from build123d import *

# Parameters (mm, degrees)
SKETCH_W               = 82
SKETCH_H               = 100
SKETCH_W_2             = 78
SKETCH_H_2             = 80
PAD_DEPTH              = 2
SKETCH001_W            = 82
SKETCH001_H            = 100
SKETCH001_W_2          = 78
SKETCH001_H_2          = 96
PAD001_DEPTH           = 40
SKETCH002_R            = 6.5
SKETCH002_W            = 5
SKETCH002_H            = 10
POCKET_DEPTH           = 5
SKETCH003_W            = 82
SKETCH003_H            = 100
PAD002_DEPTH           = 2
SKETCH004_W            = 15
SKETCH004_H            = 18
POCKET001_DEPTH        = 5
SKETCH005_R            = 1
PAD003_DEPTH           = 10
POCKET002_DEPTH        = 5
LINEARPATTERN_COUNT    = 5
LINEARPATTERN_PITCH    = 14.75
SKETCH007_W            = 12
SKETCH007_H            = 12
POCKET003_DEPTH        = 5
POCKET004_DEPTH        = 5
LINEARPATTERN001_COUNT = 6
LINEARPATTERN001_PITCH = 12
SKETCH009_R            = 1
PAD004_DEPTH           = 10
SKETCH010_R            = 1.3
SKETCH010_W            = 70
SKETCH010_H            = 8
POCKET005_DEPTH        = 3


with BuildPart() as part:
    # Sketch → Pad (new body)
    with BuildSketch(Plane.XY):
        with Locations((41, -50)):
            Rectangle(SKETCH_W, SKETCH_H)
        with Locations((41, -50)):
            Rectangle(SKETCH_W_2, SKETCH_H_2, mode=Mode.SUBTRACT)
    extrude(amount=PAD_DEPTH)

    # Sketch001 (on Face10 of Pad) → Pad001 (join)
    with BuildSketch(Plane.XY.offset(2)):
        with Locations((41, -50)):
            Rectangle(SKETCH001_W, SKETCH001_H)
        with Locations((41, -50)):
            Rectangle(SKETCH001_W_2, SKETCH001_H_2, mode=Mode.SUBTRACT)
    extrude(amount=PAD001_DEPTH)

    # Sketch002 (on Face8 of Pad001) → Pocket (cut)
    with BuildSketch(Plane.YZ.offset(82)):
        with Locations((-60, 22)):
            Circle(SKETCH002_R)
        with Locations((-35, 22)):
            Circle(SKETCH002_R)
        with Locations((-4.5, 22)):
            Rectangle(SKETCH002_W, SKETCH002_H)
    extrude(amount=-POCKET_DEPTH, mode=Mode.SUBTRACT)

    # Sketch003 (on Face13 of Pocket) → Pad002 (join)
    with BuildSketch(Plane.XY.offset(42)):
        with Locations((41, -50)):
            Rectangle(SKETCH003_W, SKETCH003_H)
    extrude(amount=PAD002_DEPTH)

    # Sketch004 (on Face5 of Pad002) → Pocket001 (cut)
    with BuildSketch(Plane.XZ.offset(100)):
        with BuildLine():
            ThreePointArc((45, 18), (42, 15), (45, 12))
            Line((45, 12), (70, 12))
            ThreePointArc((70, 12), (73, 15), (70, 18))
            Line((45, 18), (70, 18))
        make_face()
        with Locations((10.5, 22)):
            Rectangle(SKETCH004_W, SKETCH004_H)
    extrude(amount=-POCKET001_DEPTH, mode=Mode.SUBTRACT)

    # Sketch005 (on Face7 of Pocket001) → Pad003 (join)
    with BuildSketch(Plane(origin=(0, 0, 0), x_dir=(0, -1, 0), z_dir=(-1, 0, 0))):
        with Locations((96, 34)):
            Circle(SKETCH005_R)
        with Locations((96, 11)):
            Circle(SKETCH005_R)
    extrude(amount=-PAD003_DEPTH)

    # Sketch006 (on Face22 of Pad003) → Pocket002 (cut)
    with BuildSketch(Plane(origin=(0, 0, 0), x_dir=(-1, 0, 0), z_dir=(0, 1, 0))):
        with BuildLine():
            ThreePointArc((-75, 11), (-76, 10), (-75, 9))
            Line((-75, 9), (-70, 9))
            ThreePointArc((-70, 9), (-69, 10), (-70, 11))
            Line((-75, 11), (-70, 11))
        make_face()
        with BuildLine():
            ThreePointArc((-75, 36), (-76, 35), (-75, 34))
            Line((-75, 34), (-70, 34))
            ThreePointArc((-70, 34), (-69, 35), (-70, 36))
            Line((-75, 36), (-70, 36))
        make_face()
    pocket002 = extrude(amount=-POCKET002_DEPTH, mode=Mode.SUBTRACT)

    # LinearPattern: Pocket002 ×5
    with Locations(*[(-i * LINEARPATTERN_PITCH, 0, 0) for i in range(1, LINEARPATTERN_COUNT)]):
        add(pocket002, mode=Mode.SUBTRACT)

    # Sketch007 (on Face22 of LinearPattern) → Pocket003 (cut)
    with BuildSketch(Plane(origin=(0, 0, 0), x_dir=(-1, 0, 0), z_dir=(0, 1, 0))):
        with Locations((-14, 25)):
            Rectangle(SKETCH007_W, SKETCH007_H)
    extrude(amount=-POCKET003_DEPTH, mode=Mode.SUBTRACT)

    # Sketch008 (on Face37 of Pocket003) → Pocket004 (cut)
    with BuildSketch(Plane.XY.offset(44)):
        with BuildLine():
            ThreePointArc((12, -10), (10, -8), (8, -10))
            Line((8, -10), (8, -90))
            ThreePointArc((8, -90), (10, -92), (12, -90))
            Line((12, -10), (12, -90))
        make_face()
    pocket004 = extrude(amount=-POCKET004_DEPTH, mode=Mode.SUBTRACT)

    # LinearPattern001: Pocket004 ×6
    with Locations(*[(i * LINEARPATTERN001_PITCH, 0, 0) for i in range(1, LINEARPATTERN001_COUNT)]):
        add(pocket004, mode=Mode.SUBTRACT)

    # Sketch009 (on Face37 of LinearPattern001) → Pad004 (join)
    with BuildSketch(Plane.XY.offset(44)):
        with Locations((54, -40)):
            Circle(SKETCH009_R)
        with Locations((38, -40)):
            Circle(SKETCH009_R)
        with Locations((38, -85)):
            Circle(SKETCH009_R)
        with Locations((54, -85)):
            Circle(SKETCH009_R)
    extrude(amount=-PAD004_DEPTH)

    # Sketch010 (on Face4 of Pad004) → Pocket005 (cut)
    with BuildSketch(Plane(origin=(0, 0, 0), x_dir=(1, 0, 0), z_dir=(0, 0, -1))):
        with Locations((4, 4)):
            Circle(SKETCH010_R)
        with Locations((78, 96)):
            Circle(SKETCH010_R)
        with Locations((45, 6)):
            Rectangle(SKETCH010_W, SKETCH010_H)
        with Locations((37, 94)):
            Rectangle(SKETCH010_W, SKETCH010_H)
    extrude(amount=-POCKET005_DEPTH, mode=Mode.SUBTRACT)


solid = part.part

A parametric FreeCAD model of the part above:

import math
import FreeCAD as App
import Part
import Sketcher
from FreeCAD import Vector

doc = App.newDocument("Part")
body = doc.addObject("PartDesign::Body", "Body")

# Sketch on XY plane
sketch1 = body.newObject("Sketcher::SketchObject", "Sketch")
sketch1.AttachmentSupport = (doc.getObject("XY_Plane"), [""])
sketch1.MapMode = "FlatFace"
sketch1.addGeometry([
    Part.LineSegment(Vector(0, 0, 0), Vector(0, -100, 0)),  # 0
    Part.LineSegment(Vector(0, -100, 0), Vector(82, -100, 0)),  # 1
    Part.LineSegment(Vector(82, -100, 0), Vector(82, 0, 0)),  # 2
    Part.LineSegment(Vector(82, 0, 0), Vector(0, 0, 0)),  # 3
    Part.LineSegment(Vector(80, -90, 0), Vector(2, -90, 0)),  # 4
    Part.LineSegment(Vector(2, -90, 0), Vector(2, -10, 0)),  # 5
    Part.LineSegment(Vector(2, -10, 0), Vector(80, -10, 0)),  # 6
    Part.LineSegment(Vector(80, -10, 0), Vector(80, -90, 0)),  # 7
], False)
sketch1.addConstraint([
    Sketcher.Constraint("Coincident", 0, 2, 1, 1),
    Sketcher.Constraint("Coincident", 1, 2, 2, 1),
    Sketcher.Constraint("Coincident", 2, 2, 3, 1),
    Sketcher.Constraint("Coincident", 3, 2, 0, 1),
    Sketcher.Constraint("Coincident", 4, 2, 5, 1),
    Sketcher.Constraint("Coincident", 5, 2, 6, 1),
    Sketcher.Constraint("Coincident", 6, 2, 7, 1),
    Sketcher.Constraint("Coincident", 7, 2, 4, 1),
    Sketcher.Constraint("Vertical", 0),
    Sketcher.Constraint("Horizontal", 1),
    Sketcher.Constraint("Vertical", 2),
    Sketcher.Constraint("Horizontal", 3),
    Sketcher.Constraint("Horizontal", 4),
    Sketcher.Constraint("Vertical", 5),
    Sketcher.Constraint("Horizontal", 6),
    Sketcher.Constraint("Vertical", 7),
    Sketcher.Constraint("Coincident", 3, 2, -1, 1),
    Sketcher.Constraint("DistanceX", 1, 1, 1, 2, 82.0),
    Sketcher.Constraint("DistanceX", 4, 2, 4, 1, 78.0),
    Sketcher.Constraint("DistanceY", 0, 2, 0, 1, 100.0),
    Sketcher.Constraint("DistanceY", 5, 1, 5, 2, 80.0),
    Sketcher.Constraint("DistanceX", -1, 1, 4, 2, 2.0),
    Sketcher.Constraint("DistanceY", 4, 2, -1, 1, 90.0),
])
pad1 = body.newObject("PartDesign::Pad", "Pad")
pad1.Profile = sketch1
pad1.Length = 2

# Sketch on XY plane
sketch2 = body.newObject("Sketcher::SketchObject", "Sketch001")
sketch2.AttachmentSupport = (doc.getObject("XY_Plane"), [""])
sketch2.MapMode = "FlatFace"
sketch2.AttachmentOffset = App.Placement(Vector(0, 0, 2), App.Rotation())
sketch2.addGeometry([
    Part.LineSegment(Vector(0, 0, 0), Vector(0, -100, 0)),  # 0
    Part.LineSegment(Vector(0, -100, 0), Vector(82, -100, 0)),  # 1
    Part.LineSegment(Vector(82, -100, 0), Vector(82, 0, 0)),  # 2
    Part.LineSegment(Vector(82, 0, 0), Vector(0, 0, 0)),  # 3
    Part.LineSegment(Vector(80, -98, 0), Vector(2, -98, 0)),  # 4
    Part.LineSegment(Vector(2, -98, 0), Vector(2, -2, 0)),  # 5
    Part.LineSegment(Vector(2, -2, 0), Vector(80, -2, 0)),  # 6
    Part.LineSegment(Vector(80, -2, 0), Vector(80, -98, 0)),  # 7
], False)
sketch2.addConstraint([
    Sketcher.Constraint("Coincident", 0, 2, 1, 1),
    Sketcher.Constraint("Coincident", 1, 2, 2, 1),
    Sketcher.Constraint("Coincident", 2, 2, 3, 1),
    Sketcher.Constraint("Coincident", 3, 2, 0, 1),
    Sketcher.Constraint("Coincident", 4, 2, 5, 1),
    Sketcher.Constraint("Coincident", 5, 2, 6, 1),
    Sketcher.Constraint("Coincident", 6, 2, 7, 1),
    Sketcher.Constraint("Coincident", 7, 2, 4, 1),
    Sketcher.Constraint("Vertical", 0),
    Sketcher.Constraint("Horizontal", 1),
    Sketcher.Constraint("Vertical", 2),
    Sketcher.Constraint("Horizontal", 3),
    Sketcher.Constraint("Horizontal", 4),
    Sketcher.Constraint("Vertical", 5),
    Sketcher.Constraint("Horizontal", 6),
    Sketcher.Constraint("Vertical", 7),
    Sketcher.Constraint("Coincident", 3, 2, -1, 1),
    Sketcher.Constraint("DistanceX", 1, 1, 1, 2, 82.0),
    Sketcher.Constraint("DistanceX", 4, 2, 4, 1, 78.0),
    Sketcher.Constraint("DistanceY", 0, 2, 0, 1, 100.0),
    Sketcher.Constraint("DistanceY", 5, 1, 5, 2, 96.0),
    Sketcher.Constraint("DistanceX", -1, 1, 4, 2, 2.0),
    Sketcher.Constraint("DistanceY", 4, 2, -1, 1, 98.0),
])
pad2 = body.newObject("PartDesign::Pad", "Pad001")
pad2.Profile = sketch2
pad2.Length = 40

# Sketch on YZ plane
sketch3 = body.newObject("Sketcher::SketchObject", "Sketch002")
sketch3.AttachmentSupport = (doc.getObject("YZ_Plane"), [""])
sketch3.MapMode = "FlatFace"
sketch3.AttachmentOffset = App.Placement(Vector(0, 0, 82), App.Rotation())
sketch3.addGeometry([
    Part.Circle(Vector(-60, 22, 0), Vector(0, 0, 1), 6),  # 0
    Part.Circle(Vector(-35, 22, 0), Vector(0, 0, 1), 6),  # 1
    Part.LineSegment(Vector(-7, 27, 0), Vector(-7, 17, 0)),  # 2
    Part.LineSegment(Vector(-7, 17, 0), Vector(-2, 17, 0)),  # 3
    Part.LineSegment(Vector(-2, 17, 0), Vector(-2, 27, 0)),  # 4
    Part.LineSegment(Vector(-2, 27, 0), Vector(-7, 27, 0)),  # 5
], False)
sketch3.addConstraint([
    Sketcher.Constraint("Coincident", 2, 2, 3, 1),
    Sketcher.Constraint("Coincident", 3, 2, 4, 1),
    Sketcher.Constraint("Coincident", 4, 2, 5, 1),
    Sketcher.Constraint("Coincident", 5, 2, 2, 1),
    Sketcher.Constraint("Vertical", 2),
    Sketcher.Constraint("Horizontal", 3),
    Sketcher.Constraint("Vertical", 4),
    Sketcher.Constraint("Horizontal", 5),
    Sketcher.Constraint("Equal", 0, 1),
    Sketcher.Constraint("Horizontal", 0, 3, 1, 3),
    Sketcher.Constraint("Diameter", 0, 13.0),
    Sketcher.Constraint("DistanceX", 3, 1, 3, 2, 5.0),
    Sketcher.Constraint("DistanceY", 2, 2, 2, 1, 10.0),
    Sketcher.Constraint("DistanceX", 0, 3, -1, 1, 60.0),
    Sketcher.Constraint("DistanceY", -1, 1, 0, 3, 22.0),
    Sketcher.Constraint("DistanceX", 1, 3, -1, 1, 35.0),
    Sketcher.Constraint("DistanceX", 2, 2, -1, 1, 7.0),
    Sketcher.Constraint("DistanceY", -1, 1, 2, 2, 17.0),
])
pocket1 = body.newObject("PartDesign::Pocket", "Pocket")
pocket1.Profile = sketch3
pocket1.Length = 5

# Sketch on XY plane
sketch4 = body.newObject("Sketcher::SketchObject", "Sketch003")
sketch4.AttachmentSupport = (doc.getObject("XY_Plane"), [""])
sketch4.MapMode = "FlatFace"
sketch4.AttachmentOffset = App.Placement(Vector(0, 0, 42), App.Rotation())
sketch4.addGeometry([
    Part.LineSegment(Vector(0, 0, 0), Vector(0, -100, 0)),
    Part.LineSegment(Vector(0, -100, 0), Vector(82, -100, 0)),
    Part.LineSegment(Vector(82, -100, 0), Vector(82, 0, 0)),
    Part.LineSegment(Vector(82, 0, 0), Vector(0, 0, 0)),
], False)
sketch4.addConstraint([
    Sketcher.Constraint("Coincident", 0, 2, 1, 1),
    Sketcher.Constraint("Coincident", 1, 2, 2, 1),
    Sketcher.Constraint("Coincident", 2, 2, 3, 1),
    Sketcher.Constraint("Coincident", 3, 2, 0, 1),
    Sketcher.Constraint("Vertical", 0),
    Sketcher.Constraint("Horizontal", 1),
    Sketcher.Constraint("Vertical", 2),
    Sketcher.Constraint("Horizontal", 3),
    Sketcher.Constraint("Coincident", 3, 2, -1, 1),
    Sketcher.Constraint("DistanceX", 1, 1, 1, 2, 82.0),
    Sketcher.Constraint("DistanceY", 0, 2, 0, 1, 100.0),
])
pad3 = body.newObject("PartDesign::Pad", "Pad002")
pad3.Profile = sketch4
pad3.Length = 2

# Sketch on XZ plane
sketch5 = body.newObject("Sketcher::SketchObject", "Sketch004")
sketch5.AttachmentSupport = (doc.getObject("XZ_Plane"), [""])
sketch5.MapMode = "FlatFace"
sketch5.AttachmentOffset = App.Placement(Vector(0, 0, 100), App.Rotation())
sketch5.addGeometry([
    Part.ArcOfCircle(Part.Circle(Vector(45, 15, 0), Vector(0, 0, 1), 3), math.radians(90), math.radians(270)),  # 0
    Part.LineSegment(Vector(45, 12, 0), Vector(70, 12, 0)),  # 1
    Part.ArcOfCircle(Part.Circle(Vector(70, 15, 0), Vector(0, 0, 1), 3), math.radians(-90), math.radians(90)),  # 2
    Part.LineSegment(Vector(70, 18, 0), Vector(45, 18, 0)),  # 3
    Part.LineSegment(Vector(3, 31, 0), Vector(3, 13, 0)),  # 4
    Part.LineSegment(Vector(3, 13, 0), Vector(18, 13, 0)),  # 5
    Part.LineSegment(Vector(18, 13, 0), Vector(18, 31, 0)),  # 6
    Part.LineSegment(Vector(18, 31, 0), Vector(3, 31, 0)),  # 7
], False)
sketch5.addConstraint([
    Sketcher.Constraint("Tangent", 0, 2, 1, 1),
    Sketcher.Constraint("Tangent", 1, 2, 2, 1),
    Sketcher.Constraint("Tangent", 2, 2, 3, 1),
    Sketcher.Constraint("Tangent", 3, 2, 0, 1),
    Sketcher.Constraint("Coincident", 4, 2, 5, 1),
    Sketcher.Constraint("Coincident", 5, 2, 6, 1),
    Sketcher.Constraint("Coincident", 6, 2, 7, 1),
    Sketcher.Constraint("Coincident", 7, 2, 4, 1),
    Sketcher.Constraint("Horizontal", 1),
    Sketcher.Constraint("Horizontal", 3),
    Sketcher.Constraint("Vertical", 4),
    Sketcher.Constraint("Horizontal", 5),
    Sketcher.Constraint("Vertical", 6),
    Sketcher.Constraint("Horizontal", 7),
    Sketcher.Constraint("Radius", 0, 3.0),
    Sketcher.Constraint("DistanceX", 1, 1, 1, 2, 25.0),
    Sketcher.Constraint("DistanceX", 5, 1, 5, 2, 15.0),
    Sketcher.Constraint("DistanceY", 4, 2, 4, 1, 18.0),
    Sketcher.Constraint("DistanceX", -1, 1, 0, 3, 45.0),
    Sketcher.Constraint("DistanceY", -1, 1, 0, 3, 15.0),
    Sketcher.Constraint("DistanceX", -1, 1, 4, 2, 3.0),
    Sketcher.Constraint("DistanceY", -1, 1, 4, 2, 13.0),
])
pocket2 = body.newObject("PartDesign::Pocket", "Pocket001")
pocket2.Profile = sketch5
pocket2.Length = 5

# Sketch on YZ plane
sketch6 = body.newObject("Sketcher::SketchObject", "Sketch005")
sketch6.AttachmentSupport = (doc.getObject("YZ_Plane"), [""])
sketch6.MapMode = "FlatFace"
sketch6.addGeometry([
    Part.Circle(Vector(-96, 34, 0), Vector(0, 0, 1), 1),
    Part.Circle(Vector(-96, 11, 0), Vector(0, 0, 1), 1),
], False)
sketch6.addConstraint([
    Sketcher.Constraint("Equal", 0, 1),
    Sketcher.Constraint("Vertical", 0, 3, 1, 3),
    Sketcher.Constraint("Diameter", 0, 2.0),
    Sketcher.Constraint("DistanceX", 0, 3, -1, 1, 96.0),
    Sketcher.Constraint("DistanceY", -1, 1, 0, 3, 34.0),
    Sketcher.Constraint("DistanceY", -1, 1, 1, 3, 11.0),
])
pad4 = body.newObject("PartDesign::Pad", "Pad003")
pad4.Profile = sketch6
pad4.Length = 10

# Sketch on XZ plane
sketch7 = body.newObject("Sketcher::SketchObject", "Sketch006")
sketch7.AttachmentSupport = (doc.getObject("XZ_Plane"), [""])
sketch7.MapMode = "FlatFace"
sketch7.addGeometry([
    Part.ArcOfCircle(Part.Circle(Vector(75, 10, 0), Vector(0, 0, 1), 1), math.radians(-90), math.radians(90)),  # 0
    Part.LineSegment(Vector(75, 9, 0), Vector(70, 9, 0)),  # 1
    Part.ArcOfCircle(Part.Circle(Vector(70, 10, 0), Vector(0, 0, 1), 1), math.radians(90), math.radians(270)),  # 2
    Part.LineSegment(Vector(70, 11, 0), Vector(75, 11, 0)),  # 3
    Part.ArcOfCircle(Part.Circle(Vector(75, 35, 0), Vector(0, 0, 1), 1), math.radians(-90), math.radians(90)),  # 4
    Part.LineSegment(Vector(75, 34, 0), Vector(70, 34, 0)),  # 5
    Part.ArcOfCircle(Part.Circle(Vector(70, 35, 0), Vector(0, 0, 1), 1), math.radians(90), math.radians(270)),  # 6
    Part.LineSegment(Vector(70, 36, 0), Vector(75, 36, 0)),  # 7
], False)
sketch7.addConstraint([
    Sketcher.Constraint("Tangent", 0, 1, 1, 1),
    Sketcher.Constraint("Tangent", 1, 2, 2, 2),
    Sketcher.Constraint("Tangent", 2, 1, 3, 1),
    Sketcher.Constraint("Tangent", 3, 2, 0, 2),
    Sketcher.Constraint("Tangent", 4, 1, 5, 1),
    Sketcher.Constraint("Tangent", 5, 2, 6, 2),
    Sketcher.Constraint("Tangent", 6, 1, 7, 1),
    Sketcher.Constraint("Tangent", 7, 2, 4, 2),
    Sketcher.Constraint("Horizontal", 1),
    Sketcher.Constraint("Horizontal", 3),
    Sketcher.Constraint("Horizontal", 5),
    Sketcher.Constraint("Horizontal", 7),
    Sketcher.Constraint("Equal", 2, 4),
    Sketcher.Constraint("Vertical", 0, 3, 4, 3),
    Sketcher.Constraint("Vertical", 2, 3, 6, 3),
    Sketcher.Constraint("Radius", 0, 1.0),
    Sketcher.Constraint("DistanceX", 1, 2, 1, 1, 5.0),
    Sketcher.Constraint("DistanceX", -1, 1, 0, 3, 75.0),
    Sketcher.Constraint("DistanceY", -1, 1, 0, 3, 10.0),
    Sketcher.Constraint("DistanceY", -1, 1, 4, 3, 35.0),
])
pocket3 = body.newObject("PartDesign::Pocket", "Pocket002")
pocket3.Profile = sketch7
pocket3.Length = 5
pocket3.Reversed = True
doc.recompute()

linearpattern = body.newObject("PartDesign::LinearPattern", "LinearPattern")
linearpattern.Originals = [pocket3]
linearpattern.Direction = (doc.getObject("X_Axis"), [""])
linearpattern.Mode = "offset"
linearpattern.Offset = 14.75
linearpattern.Occurrences = 5
linearpattern.Reversed = True
body.Tip = linearpattern

# Sketch on XZ plane
sketch8 = body.newObject("Sketcher::SketchObject", "Sketch007")
sketch8.AttachmentSupport = (doc.getObject("XZ_Plane"), [""])
sketch8.MapMode = "FlatFace"
sketch8.addGeometry([
    Part.LineSegment(Vector(20, 31, 0), Vector(20, 19, 0)),
    Part.LineSegment(Vector(20, 19, 0), Vector(8, 19, 0)),
    Part.LineSegment(Vector(8, 19, 0), Vector(8, 31, 0)),
    Part.LineSegment(Vector(8, 31, 0), Vector(20, 31, 0)),
], False)
sketch8.addConstraint([
    Sketcher.Constraint("Coincident", 0, 2, 1, 1),
    Sketcher.Constraint("Coincident", 1, 2, 2, 1),
    Sketcher.Constraint("Coincident", 2, 2, 3, 1),
    Sketcher.Constraint("Coincident", 3, 2, 0, 1),
    Sketcher.Constraint("Vertical", 0),
    Sketcher.Constraint("Horizontal", 1),
    Sketcher.Constraint("Vertical", 2),
    Sketcher.Constraint("Horizontal", 3),
    Sketcher.Constraint("Equal", 3, 0),
    Sketcher.Constraint("DistanceX", 1, 2, 1, 1, 12.0),
    Sketcher.Constraint("DistanceX", -1, 1, 0, 2, 20.0),
    Sketcher.Constraint("DistanceY", -1, 1, 0, 2, 19.0),
])
pocket4 = body.newObject("PartDesign::Pocket", "Pocket003")
pocket4.Profile = sketch8
pocket4.Length = 5
pocket4.Reversed = True

# Sketch on XY plane
sketch9 = body.newObject("Sketcher::SketchObject", "Sketch008")
sketch9.AttachmentSupport = (doc.getObject("XY_Plane"), [""])
sketch9.MapMode = "FlatFace"
sketch9.AttachmentOffset = App.Placement(Vector(0, 0, 44), App.Rotation())
sketch9.addGeometry([
    Part.ArcOfCircle(Part.Circle(Vector(10, -10, 0), Vector(0, 0, 1), 2), math.radians(0), math.radians(180)),
    Part.LineSegment(Vector(8, -10, 0), Vector(8, -90, 0)),
    Part.ArcOfCircle(Part.Circle(Vector(10, -90, 0), Vector(0, 0, 1), 2), math.radians(180), math.radians(360)),
    Part.LineSegment(Vector(12, -90, 0), Vector(12, -10, 0)),
], False)
sketch9.addConstraint([
    Sketcher.Constraint("Tangent", 0, 2, 1, 1),
    Sketcher.Constraint("Tangent", 1, 2, 2, 1),
    Sketcher.Constraint("Tangent", 2, 2, 3, 1),
    Sketcher.Constraint("Tangent", 3, 2, 0, 1),
    Sketcher.Constraint("Vertical", 1),
    Sketcher.Constraint("Vertical", 3),
    Sketcher.Constraint("Radius", 0, 2.0),
    Sketcher.Constraint("DistanceY", 1, 2, 1, 1, 80.0),
    Sketcher.Constraint("DistanceX", -1, 1, 0, 3, 10.0),
    Sketcher.Constraint("DistanceY", 0, 3, -1, 1, 10.0),
])
pocket5 = body.newObject("PartDesign::Pocket", "Pocket004")
pocket5.Profile = sketch9
pocket5.Length = 5
doc.recompute()

linearpattern2 = body.newObject("PartDesign::LinearPattern", "LinearPattern001")
linearpattern2.Originals = [pocket5]
linearpattern2.Direction = (doc.getObject("X_Axis"), [""])
linearpattern2.Mode = "offset"
linearpattern2.Offset = 12
linearpattern2.Occurrences = 6
body.Tip = linearpattern2

# Sketch on XY plane
sketch10 = body.newObject("Sketcher::SketchObject", "Sketch009")
sketch10.AttachmentSupport = (doc.getObject("XY_Plane"), [""])
sketch10.MapMode = "FlatFace"
sketch10.AttachmentOffset = App.Placement(Vector(0, 0, 44), App.Rotation())
sketch10.addGeometry([
    Part.Circle(Vector(54, -40, 0), Vector(0, 0, 1), 1),
    Part.Circle(Vector(38, -40, 0), Vector(0, 0, 1), 1),
    Part.Circle(Vector(38, -85, 0), Vector(0, 0, 1), 1),
    Part.Circle(Vector(54, -85, 0), Vector(0, 0, 1), 1),
], False)
sketch10.addConstraint([
    Sketcher.Constraint("Equal", 0, 1),
    Sketcher.Constraint("Equal", 1, 2),
    Sketcher.Constraint("Equal", 2, 3),
    Sketcher.Constraint("Horizontal", 0, 3, 1, 3),
    Sketcher.Constraint("Horizontal", 2, 3, 3, 3),
    Sketcher.Constraint("Vertical", 1, 3, 2, 3),
    Sketcher.Constraint("Vertical", 0, 3, 3, 3),
    Sketcher.Constraint("Diameter", 0, 2.0),
    Sketcher.Constraint("DistanceX", -1, 1, 0, 3, 54.0),
    Sketcher.Constraint("DistanceY", 0, 3, -1, 1, 40.0),
    Sketcher.Constraint("DistanceX", -1, 1, 1, 3, 38.0),
    Sketcher.Constraint("DistanceY", 2, 3, -1, 1, 85.0),
])
pad5 = body.newObject("PartDesign::Pad", "Pad004")
pad5.Profile = sketch10
pad5.Length = 10
pad5.Reversed = True

# Sketch on XY plane
sketch11 = body.newObject("Sketcher::SketchObject", "Sketch010")
sketch11.AttachmentSupport = (doc.getObject("XY_Plane"), [""])
sketch11.MapMode = "FlatFace"
sketch11.addGeometry([
    Part.Circle(Vector(4, -4, 0), Vector(0, 0, 1), 1.3),  # 0
    Part.Circle(Vector(78, -96, 0), Vector(0, 0, 1), 1.3),  # 1
    Part.LineSegment(Vector(10, -10, 0), Vector(10, -2, 0)),  # 2
    Part.LineSegment(Vector(10, -2, 0), Vector(80, -2, 0)),  # 3
    Part.LineSegment(Vector(80, -2, 0), Vector(80, -10, 0)),  # 4
    Part.LineSegment(Vector(80, -10, 0), Vector(10, -10, 0)),  # 5
    Part.LineSegment(Vector(2, -98, 0), Vector(2, -90, 0)),  # 6
    Part.LineSegment(Vector(2, -90, 0), Vector(72, -90, 0)),  # 7
    Part.LineSegment(Vector(72, -90, 0), Vector(72, -98, 0)),  # 8
    Part.LineSegment(Vector(72, -98, 0), Vector(2, -98, 0)),  # 9
], False)
sketch11.addConstraint([
    Sketcher.Constraint("Coincident", 2, 2, 3, 1),
    Sketcher.Constraint("Coincident", 3, 2, 4, 1),
    Sketcher.Constraint("Coincident", 4, 2, 5, 1),
    Sketcher.Constraint("Coincident", 5, 2, 2, 1),
    Sketcher.Constraint("Coincident", 6, 2, 7, 1),
    Sketcher.Constraint("Coincident", 7, 2, 8, 1),
    Sketcher.Constraint("Coincident", 8, 2, 9, 1),
    Sketcher.Constraint("Coincident", 9, 2, 6, 1),
    Sketcher.Constraint("Vertical", 2),
    Sketcher.Constraint("Horizontal", 3),
    Sketcher.Constraint("Vertical", 4),
    Sketcher.Constraint("Horizontal", 5),
    Sketcher.Constraint("Vertical", 6),
    Sketcher.Constraint("Horizontal", 7),
    Sketcher.Constraint("Vertical", 8),
    Sketcher.Constraint("Horizontal", 9),
    Sketcher.Constraint("Equal", 0, 1),
    Sketcher.Constraint("Equal", 5, 7),
    Sketcher.Constraint("Equal", 4, 6),
    Sketcher.Constraint("Diameter", 0, 2.6),
    Sketcher.Constraint("DistanceX", 3, 1, 3, 2, 70.0),
    Sketcher.Constraint("DistanceY", 2, 1, 2, 2, 8.0),
    Sketcher.Constraint("DistanceX", -1, 1, 0, 3, 4.0),
    Sketcher.Constraint("DistanceY", 0, 3, -1, 1, 4.0),
    Sketcher.Constraint("DistanceX", -1, 1, 1, 3, 78.0),
    Sketcher.Constraint("DistanceY", 1, 3, -1, 1, 96.0),
    Sketcher.Constraint("DistanceX", -1, 1, 2, 2, 10.0),
    Sketcher.Constraint("DistanceY", 2, 2, -1, 1, 2.0),
    Sketcher.Constraint("DistanceX", -1, 1, 6, 2, 2.0),
    Sketcher.Constraint("DistanceY", 6, 2, -1, 1, 90.0),
])
pocket6 = body.newObject("PartDesign::Pocket", "Pocket005")
pocket6.Profile = sketch11
pocket6.Length = 3
pocket6.Reversed = True

doc.recompute()
